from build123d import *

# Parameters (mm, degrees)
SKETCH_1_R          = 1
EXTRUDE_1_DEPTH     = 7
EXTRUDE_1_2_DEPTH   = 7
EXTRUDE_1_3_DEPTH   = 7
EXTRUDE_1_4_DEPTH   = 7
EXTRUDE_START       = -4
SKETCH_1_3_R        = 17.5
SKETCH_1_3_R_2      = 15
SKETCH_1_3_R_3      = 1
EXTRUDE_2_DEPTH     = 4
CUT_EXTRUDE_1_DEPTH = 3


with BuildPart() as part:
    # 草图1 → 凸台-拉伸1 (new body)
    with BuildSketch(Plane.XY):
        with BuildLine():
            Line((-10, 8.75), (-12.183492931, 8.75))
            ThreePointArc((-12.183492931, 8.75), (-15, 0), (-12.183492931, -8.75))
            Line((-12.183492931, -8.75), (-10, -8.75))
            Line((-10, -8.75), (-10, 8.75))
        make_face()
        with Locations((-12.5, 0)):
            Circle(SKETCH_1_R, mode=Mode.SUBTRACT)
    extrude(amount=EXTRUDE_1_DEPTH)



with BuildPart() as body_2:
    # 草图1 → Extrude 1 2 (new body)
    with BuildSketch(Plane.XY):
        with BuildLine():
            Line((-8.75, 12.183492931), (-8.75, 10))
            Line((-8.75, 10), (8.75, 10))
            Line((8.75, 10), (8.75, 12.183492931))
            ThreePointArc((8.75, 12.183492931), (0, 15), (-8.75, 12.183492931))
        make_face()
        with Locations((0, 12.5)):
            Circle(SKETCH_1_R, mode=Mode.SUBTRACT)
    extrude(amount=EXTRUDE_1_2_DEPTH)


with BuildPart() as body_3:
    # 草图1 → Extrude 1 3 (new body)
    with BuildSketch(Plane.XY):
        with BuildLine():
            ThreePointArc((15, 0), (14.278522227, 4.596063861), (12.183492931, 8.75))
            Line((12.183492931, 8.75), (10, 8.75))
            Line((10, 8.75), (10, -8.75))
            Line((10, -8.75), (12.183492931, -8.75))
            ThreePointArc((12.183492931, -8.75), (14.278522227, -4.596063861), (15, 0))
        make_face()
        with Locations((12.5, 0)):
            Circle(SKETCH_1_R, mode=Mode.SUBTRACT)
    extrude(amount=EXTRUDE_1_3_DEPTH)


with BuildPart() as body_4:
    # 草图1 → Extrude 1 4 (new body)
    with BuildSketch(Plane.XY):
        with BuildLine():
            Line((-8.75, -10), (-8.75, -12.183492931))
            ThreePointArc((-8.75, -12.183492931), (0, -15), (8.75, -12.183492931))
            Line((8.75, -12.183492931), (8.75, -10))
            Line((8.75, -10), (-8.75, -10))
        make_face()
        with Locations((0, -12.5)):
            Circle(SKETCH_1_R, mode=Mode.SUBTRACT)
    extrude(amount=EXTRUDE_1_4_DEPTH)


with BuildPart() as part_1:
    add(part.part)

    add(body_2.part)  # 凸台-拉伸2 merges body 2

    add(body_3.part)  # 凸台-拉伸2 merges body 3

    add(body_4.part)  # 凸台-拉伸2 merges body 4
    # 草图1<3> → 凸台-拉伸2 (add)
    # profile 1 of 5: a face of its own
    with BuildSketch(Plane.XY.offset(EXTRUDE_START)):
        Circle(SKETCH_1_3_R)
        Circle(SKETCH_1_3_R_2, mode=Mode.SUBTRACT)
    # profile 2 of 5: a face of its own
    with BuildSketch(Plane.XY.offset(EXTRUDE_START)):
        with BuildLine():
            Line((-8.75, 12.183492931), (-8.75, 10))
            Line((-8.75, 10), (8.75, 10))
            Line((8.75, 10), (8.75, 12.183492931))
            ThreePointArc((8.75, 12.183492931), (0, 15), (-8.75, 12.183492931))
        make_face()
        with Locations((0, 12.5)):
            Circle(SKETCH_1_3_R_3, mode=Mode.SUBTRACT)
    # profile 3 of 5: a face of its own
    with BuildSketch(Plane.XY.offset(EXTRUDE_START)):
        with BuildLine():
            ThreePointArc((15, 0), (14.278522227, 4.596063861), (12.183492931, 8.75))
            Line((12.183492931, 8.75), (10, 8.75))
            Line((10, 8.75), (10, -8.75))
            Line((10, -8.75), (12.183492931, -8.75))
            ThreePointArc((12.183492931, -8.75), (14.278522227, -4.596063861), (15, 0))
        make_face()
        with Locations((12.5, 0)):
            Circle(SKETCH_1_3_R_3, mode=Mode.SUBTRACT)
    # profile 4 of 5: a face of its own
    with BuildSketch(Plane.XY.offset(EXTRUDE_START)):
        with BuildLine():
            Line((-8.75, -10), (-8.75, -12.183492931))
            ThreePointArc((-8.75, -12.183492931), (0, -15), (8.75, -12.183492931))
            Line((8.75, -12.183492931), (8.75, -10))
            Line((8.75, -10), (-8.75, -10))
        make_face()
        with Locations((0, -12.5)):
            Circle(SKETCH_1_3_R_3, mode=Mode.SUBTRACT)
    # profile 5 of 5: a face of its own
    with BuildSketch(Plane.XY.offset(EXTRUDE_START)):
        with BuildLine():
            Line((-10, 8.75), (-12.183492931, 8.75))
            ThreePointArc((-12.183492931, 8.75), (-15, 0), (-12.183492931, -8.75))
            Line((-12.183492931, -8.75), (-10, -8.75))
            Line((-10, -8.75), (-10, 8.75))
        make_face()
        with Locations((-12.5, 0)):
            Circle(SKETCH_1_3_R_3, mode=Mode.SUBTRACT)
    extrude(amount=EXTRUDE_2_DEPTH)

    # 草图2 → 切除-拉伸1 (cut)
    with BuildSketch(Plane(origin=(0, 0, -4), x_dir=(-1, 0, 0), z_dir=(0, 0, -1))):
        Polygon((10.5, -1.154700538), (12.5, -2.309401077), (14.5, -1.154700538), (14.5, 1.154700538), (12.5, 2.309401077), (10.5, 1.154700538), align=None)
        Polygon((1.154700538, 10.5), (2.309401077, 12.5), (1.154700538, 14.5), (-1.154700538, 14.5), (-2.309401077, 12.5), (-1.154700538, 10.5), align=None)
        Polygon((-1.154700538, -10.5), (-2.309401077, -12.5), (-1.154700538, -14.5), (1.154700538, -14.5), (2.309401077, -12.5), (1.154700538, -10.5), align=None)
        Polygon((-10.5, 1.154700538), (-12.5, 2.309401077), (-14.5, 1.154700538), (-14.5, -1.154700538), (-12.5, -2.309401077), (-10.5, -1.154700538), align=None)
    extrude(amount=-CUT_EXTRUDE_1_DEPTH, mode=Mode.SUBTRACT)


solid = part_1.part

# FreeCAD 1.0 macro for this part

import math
import FreeCAD as App
import Part
import Sketcher
from FreeCAD import Vector
Q = App.Units.Quantity


def add_polygon(sketch, points):
    """Adds a closed chain of lines whose ends are joined by coincident constraints."""
    first, n = sketch.GeometryCount, len(points)
    for a, b in zip(points, points[1:] + points[:1]):
        sketch.addGeometry(Part.LineSegment(App.Vector(*a, 0), App.Vector(*b, 0)), False)
    for i in range(n):
        sketch.addConstraint(Sketcher.Constraint("Coincident", first + i, 2, first + (i + 1) % n, 1))

doc = App.newDocument("Part")
params = doc.addObject("Spreadsheet::Sheet", "Params")
for row, (alias, value) in enumerate([
    ("sketch1_diameter", "2 mm"),
    ("sketch1_radius", "15 mm"),
    ("sketch1_height", "17.5 mm"),
    ("pad1_length", "7 mm"),
    ("sketch2_diameter", "2 mm"),
    ("sketch2_radius", "15 mm"),
    ("sketch2_width", "17.5 mm"),
    ("pad2_length", "7 mm"),
    ("sketch3_diameter", "2 mm"),
    ("sketch3_radius", "15 mm"),
    ("sketch3_height", "17.5 mm"),
    ("pad3_length", "7 mm"),
    ("sketch4_diameter", "2 mm"),
    ("sketch4_radius", "15 mm"),
    ("sketch4_width", "17.5 mm"),
    ("pad4_length", "7 mm"),
    ("sketch5_diameter", "35 mm"),
    ("sketch5_diameter2", "2 mm"),
    ("sketch5_radius", "15 mm"),
    ("sketch5_width", "17.5 mm"),
    ("pad5_length", "4 mm"),
    ("pocket1_length", "3 mm"),
], start=1):
    params.set(f"A{row}", alias)
    params.set(f"B{row}", "=" + value)
    params.setAlias(f"B{row}", alias)

body = doc.addObject("PartDesign::Body", "Body")

# Sketch on XY plane
sketch1 = body.newObject("Sketcher::SketchObject", "Sketch")
sketch1.AttachmentSupport = (doc.getObject("XY_Plane"), [""])
sketch1.MapMode = "FlatFace"
sketch1.addGeometry([
    Part.LineSegment(Vector(-10, 8.8, 0), Vector(-12.2, 8.8, 0)),  # 0
    Part.ArcOfCircle(Part.Circle(Vector(0, 0, 0), Vector(0, 0, 1), 15), math.radians(144), math.radians(216)),  # 1
    Part.LineSegment(Vector(-12.2, -8.8, 0), Vector(-10, -8.8, 0)),  # 2
    Part.LineSegment(Vector(-10, -8.8, 0), Vector(-10, 8.8, 0)),  # 3
    Part.Circle(Vector(-12.5, 0, 0), Vector(0, 0, 1), 1),  # 4
], False)
sketch1.addConstraint([
    Sketcher.Constraint("Coincident", 0, 2, 1, 1),
    Sketcher.Constraint("Coincident", 1, 2, 2, 1),
    Sketcher.Constraint("Coincident", 2, 2, 3, 1),
    Sketcher.Constraint("Coincident", 3, 2, 0, 1),
    Sketcher.Constraint("Horizontal", 0),
    Sketcher.Constraint("Horizontal", 2),
    Sketcher.Constraint("Vertical", 3),
    Sketcher.Constraint("Coincident", 1, 3, -1, 1),
    Sketcher.Constraint("PointOnObject", 4, 3, -1),
    Sketcher.Constraint("Vertical", 0, 2, 1, 2),
    Sketcher.Constraint("Diameter", 4, Q("2 mm")),
    Sketcher.Constraint("Radius", 1, Q("15 mm")),
    Sketcher.Constraint("DistanceY", 3, 1, 3, 2, Q("17.5 mm")),
    Sketcher.Constraint("DistanceX", 2, 2, -1, 1, Q("10 mm")),
    Sketcher.Constraint("DistanceX", 4, 3, -1, 1, Q("12.5 mm")),
])
sketch1.setExpression("Constraints[10]", "Params.sketch1_diameter")
sketch1.setExpression("Constraints[11]", "Params.sketch1_radius")
sketch1.setExpression("Constraints[12]", "Params.sketch1_height")
pad1 = body.newObject("PartDesign::Pad", "Pad")
pad1.Profile = sketch1
pad1.setExpression("Length", "Params.pad1_length")
body2 = doc.addObject("PartDesign::Body", "Body001")

# Sketch on XY plane
sketch2 = body2.newObject("Sketcher::SketchObject", "Sketch001")
sketch2.AttachmentSupport = (doc.getObject("XY_Plane001"), [""])
sketch2.MapMode = "FlatFace"
sketch2.addGeometry([
    Part.LineSegment(Vector(-8.8, 12.2, 0), Vector(-8.8, 10, 0)),  # 0
    Part.LineSegment(Vector(-8.8, 10, 0), Vector(8.8, 10, 0)),  # 1
    Part.LineSegment(Vector(8.8, 10, 0), Vector(8.8, 12.2, 0)),  # 2
    Part.ArcOfCircle(Part.Circle(Vector(0, 0, 0), Vector(0, 0, 1), 15), math.radians(54), math.radians(126)),  # 3
    Part.Circle(Vector(0, 12.5, 0), Vector(0, 0, 1), 1),  # 4
], False)
sketch2.addConstraint([
    Sketcher.Constraint("Coincident", 0, 2, 1, 1),
    Sketcher.Constraint("Coincident", 1, 2, 2, 1),
    Sketcher.Constraint("Coincident", 2, 2, 3, 1),
    Sketcher.Constraint("Coincident", 3, 2, 0, 1),
    Sketcher.Constraint("Vertical", 0),
    Sketcher.Constraint("Horizontal", 1),
    Sketcher.Constraint("Vertical", 2),
    Sketcher.Constraint("Coincident", 3, 3, -1, 1),
    Sketcher.Constraint("PointOnObject", 4, 3, -2),
    Sketcher.Constraint("Horizontal", 2, 2, 3, 2),
    Sketcher.Constraint("Diameter", 4, Q("2 mm")),
    Sketcher.Constraint("Radius", 3, Q("15 mm")),
    Sketcher.Constraint("DistanceX", 1, 1, 1, 2, Q("17.5 mm")),
    Sketcher.Constraint("DistanceY", -1, 1, 0, 2, Q("10 mm")),
    Sketcher.Constraint("DistanceY", -1, 1, 4, 3, Q("12.5 mm")),
])
sketch2.setExpression("Constraints[10]", "Params.sketch2_diameter")
sketch2.setExpression("Constraints[11]", "Params.sketch2_radius")
sketch2.setExpression("Constraints[12]", "Params.sketch2_width")
pad2 = body2.newObject("PartDesign::Pad", "Pad001")
pad2.Profile = sketch2
pad2.setExpression("Length", "Params.pad2_length")
body3 = doc.addObject("PartDesign::Body", "Body002")

# Sketch on XY plane
sketch3 = body3.newObject("Sketcher::SketchObject", "Sketch002")
sketch3.AttachmentSupport = (doc.getObject("XY_Plane002"), [""])
sketch3.MapMode = "FlatFace"
sketch3.addGeometry([
    Part.ArcOfCircle(Part.Circle(Vector(0, 0, 0), Vector(0, 0, 1), 15), math.radians(0), math.radians(36)),  # 0
    Part.LineSegment(Vector(12.2, 8.8, 0), Vector(10, 8.8, 0)),  # 1
    Part.LineSegment(Vector(10, 8.8, 0), Vector(10, -8.8, 0)),  # 2
    Part.LineSegment(Vector(10, -8.8, 0), Vector(12.2, -8.8, 0)),  # 3
    Part.ArcOfCircle(Part.Circle(Vector(0, 0, 0), Vector(0, 0, 1), 15), math.radians(-36), math.radians(0)),  # 4
    Part.Circle(Vector(12.5, 0, 0), Vector(0, 0, 1), 1),  # 5
], False)
sketch3.addConstraint([
    Sketcher.Constraint("Coincident", 0, 2, 1, 1),
    Sketcher.Constraint("Coincident", 1, 2, 2, 1),
    Sketcher.Constraint("Coincident", 2, 2, 3, 1),
    Sketcher.Constraint("Coincident", 3, 2, 4, 1),
    Sketcher.Constraint("Tangent", 4, 2, 0, 1),
    Sketcher.Constraint("Horizontal", 1),
    Sketcher.Constraint("Vertical", 2),
    Sketcher.Constraint("Horizontal", 3),
    Sketcher.Constraint("Coincident", 0, 3, -1, 1),
    Sketcher.Constraint("Equal", 0, 4),
    Sketcher.Constraint("PointOnObject", 5, 3, -1),
    Sketcher.Constraint("PointOnObject", 4, 2, -1),
    Sketcher.Constraint("Vertical", 0, 2, 3, 2),
    Sketcher.Constraint("Diameter", 5, Q("2 mm")),
    Sketcher.Constraint("Radius", 0, Q("15 mm")),
    Sketcher.Constraint("DistanceY", 2, 2, 2, 1, Q("17.5 mm")),
    Sketcher.Constraint("DistanceX", -1, 1, 1, 2, Q("10 mm")),
    Sketcher.Constraint("DistanceX", -1, 1, 5, 3, Q("12.5 mm")),
])
sketch3.setExpression("Constraints[13]", "Params.sketch3_diameter")
sketch3.setExpression("Constraints[14]", "Params.sketch3_radius")
sketch3.setExpression("Constraints[15]", "Params.sketch3_height")
pad3 = body3.newObject("PartDesign::Pad", "Pad002")
pad3.Profile = sketch3
pad3.setExpression("Length", "Params.pad3_length")
body4 = doc.addObject("PartDesign::Body", "Body003")

# Sketch on XY plane
sketch4 = body4.newObject("Sketcher::SketchObject", "Sketch003")
sketch4.AttachmentSupport = (doc.getObject("XY_Plane003"), [""])
sketch4.MapMode = "FlatFace"
sketch4.addGeometry([
    Part.LineSegment(Vector(-8.8, -10, 0), Vector(-8.8, -12.2, 0)),  # 0
    Part.ArcOfCircle(Part.Circle(Vector(0, 0, 0), Vector(0, 0, 1), 15), math.radians(-126), math.radians(-54)),  # 1
    Part.LineSegment(Vector(8.8, -12.2, 0), Vector(8.8, -10, 0)),  # 2
    Part.LineSegment(Vector(8.8, -10, 0), Vector(-8.8, -10, 0)),  # 3
    Part.Circle(Vector(0, -12.5, 0), Vector(0, 0, 1), 1),  # 4
], False)
sketch4.addConstraint([
    Sketcher.Constraint("Coincident", 0, 2, 1, 1),
    Sketcher.Constraint("Coincident", 1, 2, 2, 1),
    Sketcher.Constraint("Coincident", 2, 2, 3, 1),
    Sketcher.Constraint("Coincident", 3, 2, 0, 1),
    Sketcher.Constraint("Vertical", 0),
    Sketcher.Constraint("Vertical", 2),
    Sketcher.Constraint("Horizontal", 3),
    Sketcher.Constraint("Coincident", 1, 3, -1, 1),
    Sketcher.Constraint("PointOnObject", 4, 3, -2),
    Sketcher.Constraint("Horizontal", 0, 2, 1, 2),
    Sketcher.Constraint("Diameter", 4, Q("2 mm")),
    Sketcher.Constraint("Radius", 1, Q("15 mm")),
    Sketcher.Constraint("DistanceX", 3, 2, 3, 1, Q("17.5 mm")),
    Sketcher.Constraint("DistanceY", 2, 2, -1, 1, Q("10 mm")),
    Sketcher.Constraint("DistanceY", 4, 3, -1, 1, Q("12.5 mm")),
])
sketch4.setExpression("Constraints[10]", "Params.sketch4_diameter")
sketch4.setExpression("Constraints[11]", "Params.sketch4_radius")
sketch4.setExpression("Constraints[12]", "Params.sketch4_width")
pad4 = body4.newObject("PartDesign::Pad", "Pad003")
pad4.Profile = sketch4
pad4.setExpression("Length", "Params.pad4_length")
body.AllowCompound = True
doc.recompute()

boolean = body.newObject("PartDesign::Boolean", "Boolean")
boolean.Type = "Fuse"
boolean.addObjects([body2])
doc.recompute()

boolean2 = body.newObject("PartDesign::Boolean", "Boolean001")
boolean2.Type = "Fuse"
boolean2.addObjects([body3])
doc.recompute()

boolean3 = body.newObject("PartDesign::Boolean", "Boolean002")
boolean3.Type = "Fuse"
boolean3.addObjects([body4])

# Sketch on XY plane
sketch5 = body.newObject("Sketcher::SketchObject", "Sketch004")
sketch5.AttachmentSupport = (doc.getObject("XY_Plane"), [""])
sketch5.MapMode = "FlatFace"
sketch5.AttachmentOffset = App.Placement(Vector(0, 0, -4), App.Rotation())
sketch5.addGeometry([
    Part.Circle(Vector(0, 0, 0), Vector(0, 0, 1), 17.5),  # 0
    Part.ArcOfCircle(Part.Circle(Vector(0, 0, 0), Vector(0, 0, 1), 15), math.radians(35.69), math.radians(54.31)),  # 1
    Part.LineSegment(Vector(12.2, 8.8, 0), Vector(10, 8.8, 0)),  # 2
    Part.LineSegment(Vector(10, 8.8, 0), Vector(10, -8.8, 0)),  # 3
    Part.LineSegment(Vector(10, -8.8, 0), Vector(12.2, -8.8, 0)),  # 4
    Part.ArcOfCircle(Part.Circle(Vector(0, 0, 0), Vector(0, 0, 1), 15), math.radians(-54.31), math.radians(-35.69)),  # 5
    Part.LineSegment(Vector(8.8, -12.2, 0), Vector(8.8, -10, 0)),  # 6
    Part.LineSegment(Vector(8.8, -10, 0), Vector(-8.8, -10, 0)),  # 7
    Part.LineSegment(Vector(-8.8, -10, 0), Vector(-8.8, -12.2, 0)),  # 8
    Part.ArcOfCircle(Part.Circle(Vector(0, 0, 0), Vector(0, 0, 1), 15), math.radians(-144.31), math.radians(-125.69)),  # 9
    Part.LineSegment(Vector(-12.2, -8.8, 0), Vector(-10, -8.8, 0)),  # 10
    Part.LineSegment(Vector(-10, -8.8, 0), Vector(-10, 8.8, 0)),  # 11
    Part.LineSegment(Vector(-10, 8.8, 0), Vector(-12.2, 8.8, 0)),  # 12
    Part.ArcOfCircle(Part.Circle(Vector(0, 0, 0), Vector(0, 0, 1), 15), math.radians(125.69), math.radians(144.31)),  # 13
    Part.LineSegment(Vector(-8.8, 12.2, 0), Vector(-8.8, 10, 0)),  # 14
    Part.LineSegment(Vector(-8.8, 10, 0), Vector(8.8, 10, 0)),  # 15
    Part.LineSegment(Vector(8.8, 10, 0), Vector(8.8, 12.2, 0)),  # 16
    Part.Circle(Vector(12.5, 0, 0), Vector(0, 0, 1), 1),  # 17
    Part.Circle(Vector(0, 12.5, 0), Vector(0, 0, 1), 1),  # 18
    Part.Circle(Vector(-12.5, 0, 0), Vector(0, 0, 1), 1),  # 19
    Part.Circle(Vector(0, -12.5, 0), Vector(0, 0, 1), 1),  # 20
], False)
sketch5.addConstraint([
    Sketcher.Constraint("Coincident", 1, 1, 2, 1),
    Sketcher.Constraint("Coincident", 2, 2, 3, 1),
    Sketcher.Constraint("Coincident", 3, 2, 4, 1),
    Sketcher.Constraint("Coincident", 4, 2, 5, 2),
    Sketcher.Constraint("Coincident", 5, 1, 6, 1),
    Sketcher.Constraint("Coincident", 6, 2, 7, 1),
    Sketcher.Constraint("Coincident", 7, 2, 8, 1),
    Sketcher.Constraint("Coincident", 8, 2, 9, 2),
    Sketcher.Constraint("Coincident", 9, 1, 10, 1),
    Sketcher.Constraint("Coincident", 10, 2, 11, 1),
    Sketcher.Constraint("Coincident", 11, 2, 12, 1),
    Sketcher.Constraint("Coincident", 12, 2, 13, 2),
    Sketcher.Constraint("Coincident", 13, 1, 14, 1),
    Sketcher.Constraint("Coincident", 14, 2, 15, 1),
    Sketcher.Constraint("Coincident", 15, 2, 16, 1),
    Sketcher.Constraint("Coincident", 16, 2, 1, 2),
    Sketcher.Constraint("Horizontal", 2),
    Sketcher.Constraint("Vertical", 3),
    Sketcher.Constraint("Horizontal", 4),
    Sketcher.Constraint("Vertical", 6),
    Sketcher.Constraint("Horizontal", 7),
    Sketcher.Constraint("Vertical", 8),
    Sketcher.Constraint("Horizontal", 10),
    Sketcher.Constraint("Vertical", 11),
    Sketcher.Constraint("Horizontal", 12),
    Sketcher.Constraint("Vertical", 14),
    Sketcher.Constraint("Horizontal", 15),
    Sketcher.Constraint("Vertical", 16),
    Sketcher.Constraint("Coincident", 0, 3, -1, 1),
    Sketcher.Constraint("Coincident", 1, 3, -1, 1),
    Sketcher.Constraint("Coincident", 5, 3, -1, 1),
    Sketcher.Constraint("Coincident", 9, 3, -1, 1),
    Sketcher.Constraint("Coincident", 13, 3, -1, 1),
    Sketcher.Constraint("Equal", 1, 5),
    Sketcher.Constraint("Equal", 5, 9),
    Sketcher.Constraint("Equal", 9, 13),
    Sketcher.Constraint("Equal", 17, 18),
    Sketcher.Constraint("Equal", 18, 19),
    Sketcher.Constraint("Equal", 19, 20),
    Sketcher.Constraint("Symmetric", 17, 3, 19, 3, -1, 1),
    Sketcher.Constraint("Symmetric", 18, 3, 20, 3, -1, 1),
    Sketcher.Constraint("Symmetric", 2, 2, 10, 2, -1, 1),
    Sketcher.Constraint("Symmetric", 6, 2, 14, 2, -1, 1),
    Sketcher.Constraint("PointOnObject", 17, 3, -1),
    Sketcher.Constraint("PointOnObject", 18, 3, -2),
    Sketcher.Constraint("Horizontal", 5, 1, 8, 2),
    Sketcher.Constraint("Horizontal", 4, 2, 9, 1),
    Sketcher.Constraint("Horizontal", 2, 2, 11, 2),
    Sketcher.Constraint("Horizontal", 13, 1, 16, 2),
    Sketcher.Constraint("Equal", 15, 3),
    Sketcher.Constraint("Equal", 12, 6),
    Sketcher.Constraint("Diameter", 0, Q("35 mm")),
    Sketcher.Constraint("Diameter", 17, Q("2 mm")),
    Sketcher.Constraint("Radius", 1, Q("15 mm")),
    Sketcher.Constraint("DistanceX", 7, 2, 7, 1, Q("17.5 mm")),
    Sketcher.Constraint("DistanceX", -1, 1, 2, 2, Q("10 mm")),
    Sketcher.Constraint("DistanceX", -1, 1, 17, 3, Q("12.5 mm")),
    Sketcher.Constraint("DistanceY", -1, 1, 18, 3, Q("12.5 mm")),
])
sketch5.setExpression("Constraints[51]", "Params.sketch5_diameter")
sketch5.setExpression("Constraints[52]", "Params.sketch5_diameter2")
sketch5.setExpression("Constraints[53]", "Params.sketch5_radius")
sketch5.setExpression("Constraints[54]", "Params.sketch5_width")
pad5 = body.newObject("PartDesign::Pad", "Pad004")
pad5.Profile = sketch5
pad5.setExpression("Length", "Params.pad5_length")

# Sketch on XY plane
sketch6 = body.newObject("Sketcher::SketchObject", "Sketch005")
sketch6.AttachmentSupport = (doc.getObject("XY_Plane"), [""])
sketch6.MapMode = "FlatFace"
sketch6.AttachmentOffset = App.Placement(Vector(0, 0, -4), App.Rotation())
add_polygon(sketch6, [(-10.5, -1.2), (-12.5, -2.3), (-14.5, -1.2), (-14.5, 1.2), (-12.5, 2.3), (-10.5, 1.2)])  # lines 0-5
add_polygon(sketch6, [(-1.2, 10.5), (-2.3, 12.5), (-1.2, 14.5), (1.2, 14.5), (2.3, 12.5), (1.2, 10.5)])  # lines 6-11
add_polygon(sketch6, [(1.2, -10.5), (2.3, -12.5), (1.2, -14.5), (-1.2, -14.5), (-2.3, -12.5), (-1.2, -10.5)])  # lines 12-17
add_polygon(sketch6, [(10.5, 1.2), (12.5, 2.3), (14.5, 1.2), (14.5, -1.2), (12.5, -2.3), (10.5, -1.2)])  # lines 18-23
sketch6.addConstraint([
    Sketcher.Constraint("Vertical", 2),
    Sketcher.Constraint("Vertical", 5),
    Sketcher.Constraint("Horizontal", 8),
    Sketcher.Constraint("Horizontal", 11),
    Sketcher.Constraint("Horizontal", 14),
    Sketcher.Constraint("Horizontal", 17),
    Sketcher.Constraint("Vertical", 20),
    Sketcher.Constraint("Vertical", 23),
    Sketcher.Constraint("Symmetric", 6, 2, 12, 2, -1, 1),
    Sketcher.Constraint("Symmetric", 7, 2, 13, 2, -1, 1),
    Sketcher.Constraint("Symmetric", 9, 2, 15, 2, -1, 1),
    Sketcher.Constraint("Symmetric", 10, 2, 16, 2, -1, 1),
    Sketcher.Constraint("Symmetric", 0, 2, 18, 2, -1, 1),
    Sketcher.Constraint("Symmetric", 1, 2, 19, 2, -1, 1),
    Sketcher.Constraint("Symmetric", 3, 2, 21, 2, -1, 1),
    Sketcher.Constraint("Symmetric", 4, 2, 22, 2, -1, 1),
    Sketcher.Constraint("Symmetric", 6, 2, 9, 2, -2),
    Sketcher.Constraint("Symmetric", 3, 2, 18, 2, -2),
    Sketcher.Constraint("Parallel", 0, 3),
    Sketcher.Constraint("Parallel", 1, 4),
    Sketcher.Constraint("Perpendicular", 3, 6),
    Sketcher.Constraint("Perpendicular", 4, 7),
    Sketcher.Constraint("Parallel", 6, 9),
    Sketcher.Constraint("Parallel", 7, 10),
    Sketcher.Constraint("Parallel", 9, 12),
    Sketcher.Constraint("Parallel", 12, 15),
    Sketcher.Constraint("Perpendicular", 15, 18),
    Sketcher.Constraint("Parallel", 18, 21),
    Sketcher.Constraint("Horizontal", 2, 2, 4, 2),
    Sketcher.Constraint("Horizontal", 1, 2, 5, 2),
    Sketcher.Constraint("Vertical", 8, 2, 10, 2),
    Sketcher.Constraint("Equal", 17, 2),
    Sketcher.Constraint("Equal", 4, 6),
    Sketcher.Constraint("Angle", 0, Q("-150 deg")),
    Sketcher.Constraint("DistanceX", 1, 2, 0, 2, Q("2 mm")),
    Sketcher.Constraint("DistanceX", 0, 2, -1, 1, Q("12.5 mm")),
    Sketcher.Constraint("DistanceY", -1, 1, 6, 2, Q("12.5 mm")),
    Sketcher.Constraint("DistanceX", 8, 1, 8, 2, Q("2.309401 mm")),
])
pocket1 = body.newObject("PartDesign::Pocket", "Pocket")
pocket1.Profile = sketch6
pocket1.setExpression("Length", "Params.pocket1_length")
pocket1.Reversed = True

doc.recompute()
